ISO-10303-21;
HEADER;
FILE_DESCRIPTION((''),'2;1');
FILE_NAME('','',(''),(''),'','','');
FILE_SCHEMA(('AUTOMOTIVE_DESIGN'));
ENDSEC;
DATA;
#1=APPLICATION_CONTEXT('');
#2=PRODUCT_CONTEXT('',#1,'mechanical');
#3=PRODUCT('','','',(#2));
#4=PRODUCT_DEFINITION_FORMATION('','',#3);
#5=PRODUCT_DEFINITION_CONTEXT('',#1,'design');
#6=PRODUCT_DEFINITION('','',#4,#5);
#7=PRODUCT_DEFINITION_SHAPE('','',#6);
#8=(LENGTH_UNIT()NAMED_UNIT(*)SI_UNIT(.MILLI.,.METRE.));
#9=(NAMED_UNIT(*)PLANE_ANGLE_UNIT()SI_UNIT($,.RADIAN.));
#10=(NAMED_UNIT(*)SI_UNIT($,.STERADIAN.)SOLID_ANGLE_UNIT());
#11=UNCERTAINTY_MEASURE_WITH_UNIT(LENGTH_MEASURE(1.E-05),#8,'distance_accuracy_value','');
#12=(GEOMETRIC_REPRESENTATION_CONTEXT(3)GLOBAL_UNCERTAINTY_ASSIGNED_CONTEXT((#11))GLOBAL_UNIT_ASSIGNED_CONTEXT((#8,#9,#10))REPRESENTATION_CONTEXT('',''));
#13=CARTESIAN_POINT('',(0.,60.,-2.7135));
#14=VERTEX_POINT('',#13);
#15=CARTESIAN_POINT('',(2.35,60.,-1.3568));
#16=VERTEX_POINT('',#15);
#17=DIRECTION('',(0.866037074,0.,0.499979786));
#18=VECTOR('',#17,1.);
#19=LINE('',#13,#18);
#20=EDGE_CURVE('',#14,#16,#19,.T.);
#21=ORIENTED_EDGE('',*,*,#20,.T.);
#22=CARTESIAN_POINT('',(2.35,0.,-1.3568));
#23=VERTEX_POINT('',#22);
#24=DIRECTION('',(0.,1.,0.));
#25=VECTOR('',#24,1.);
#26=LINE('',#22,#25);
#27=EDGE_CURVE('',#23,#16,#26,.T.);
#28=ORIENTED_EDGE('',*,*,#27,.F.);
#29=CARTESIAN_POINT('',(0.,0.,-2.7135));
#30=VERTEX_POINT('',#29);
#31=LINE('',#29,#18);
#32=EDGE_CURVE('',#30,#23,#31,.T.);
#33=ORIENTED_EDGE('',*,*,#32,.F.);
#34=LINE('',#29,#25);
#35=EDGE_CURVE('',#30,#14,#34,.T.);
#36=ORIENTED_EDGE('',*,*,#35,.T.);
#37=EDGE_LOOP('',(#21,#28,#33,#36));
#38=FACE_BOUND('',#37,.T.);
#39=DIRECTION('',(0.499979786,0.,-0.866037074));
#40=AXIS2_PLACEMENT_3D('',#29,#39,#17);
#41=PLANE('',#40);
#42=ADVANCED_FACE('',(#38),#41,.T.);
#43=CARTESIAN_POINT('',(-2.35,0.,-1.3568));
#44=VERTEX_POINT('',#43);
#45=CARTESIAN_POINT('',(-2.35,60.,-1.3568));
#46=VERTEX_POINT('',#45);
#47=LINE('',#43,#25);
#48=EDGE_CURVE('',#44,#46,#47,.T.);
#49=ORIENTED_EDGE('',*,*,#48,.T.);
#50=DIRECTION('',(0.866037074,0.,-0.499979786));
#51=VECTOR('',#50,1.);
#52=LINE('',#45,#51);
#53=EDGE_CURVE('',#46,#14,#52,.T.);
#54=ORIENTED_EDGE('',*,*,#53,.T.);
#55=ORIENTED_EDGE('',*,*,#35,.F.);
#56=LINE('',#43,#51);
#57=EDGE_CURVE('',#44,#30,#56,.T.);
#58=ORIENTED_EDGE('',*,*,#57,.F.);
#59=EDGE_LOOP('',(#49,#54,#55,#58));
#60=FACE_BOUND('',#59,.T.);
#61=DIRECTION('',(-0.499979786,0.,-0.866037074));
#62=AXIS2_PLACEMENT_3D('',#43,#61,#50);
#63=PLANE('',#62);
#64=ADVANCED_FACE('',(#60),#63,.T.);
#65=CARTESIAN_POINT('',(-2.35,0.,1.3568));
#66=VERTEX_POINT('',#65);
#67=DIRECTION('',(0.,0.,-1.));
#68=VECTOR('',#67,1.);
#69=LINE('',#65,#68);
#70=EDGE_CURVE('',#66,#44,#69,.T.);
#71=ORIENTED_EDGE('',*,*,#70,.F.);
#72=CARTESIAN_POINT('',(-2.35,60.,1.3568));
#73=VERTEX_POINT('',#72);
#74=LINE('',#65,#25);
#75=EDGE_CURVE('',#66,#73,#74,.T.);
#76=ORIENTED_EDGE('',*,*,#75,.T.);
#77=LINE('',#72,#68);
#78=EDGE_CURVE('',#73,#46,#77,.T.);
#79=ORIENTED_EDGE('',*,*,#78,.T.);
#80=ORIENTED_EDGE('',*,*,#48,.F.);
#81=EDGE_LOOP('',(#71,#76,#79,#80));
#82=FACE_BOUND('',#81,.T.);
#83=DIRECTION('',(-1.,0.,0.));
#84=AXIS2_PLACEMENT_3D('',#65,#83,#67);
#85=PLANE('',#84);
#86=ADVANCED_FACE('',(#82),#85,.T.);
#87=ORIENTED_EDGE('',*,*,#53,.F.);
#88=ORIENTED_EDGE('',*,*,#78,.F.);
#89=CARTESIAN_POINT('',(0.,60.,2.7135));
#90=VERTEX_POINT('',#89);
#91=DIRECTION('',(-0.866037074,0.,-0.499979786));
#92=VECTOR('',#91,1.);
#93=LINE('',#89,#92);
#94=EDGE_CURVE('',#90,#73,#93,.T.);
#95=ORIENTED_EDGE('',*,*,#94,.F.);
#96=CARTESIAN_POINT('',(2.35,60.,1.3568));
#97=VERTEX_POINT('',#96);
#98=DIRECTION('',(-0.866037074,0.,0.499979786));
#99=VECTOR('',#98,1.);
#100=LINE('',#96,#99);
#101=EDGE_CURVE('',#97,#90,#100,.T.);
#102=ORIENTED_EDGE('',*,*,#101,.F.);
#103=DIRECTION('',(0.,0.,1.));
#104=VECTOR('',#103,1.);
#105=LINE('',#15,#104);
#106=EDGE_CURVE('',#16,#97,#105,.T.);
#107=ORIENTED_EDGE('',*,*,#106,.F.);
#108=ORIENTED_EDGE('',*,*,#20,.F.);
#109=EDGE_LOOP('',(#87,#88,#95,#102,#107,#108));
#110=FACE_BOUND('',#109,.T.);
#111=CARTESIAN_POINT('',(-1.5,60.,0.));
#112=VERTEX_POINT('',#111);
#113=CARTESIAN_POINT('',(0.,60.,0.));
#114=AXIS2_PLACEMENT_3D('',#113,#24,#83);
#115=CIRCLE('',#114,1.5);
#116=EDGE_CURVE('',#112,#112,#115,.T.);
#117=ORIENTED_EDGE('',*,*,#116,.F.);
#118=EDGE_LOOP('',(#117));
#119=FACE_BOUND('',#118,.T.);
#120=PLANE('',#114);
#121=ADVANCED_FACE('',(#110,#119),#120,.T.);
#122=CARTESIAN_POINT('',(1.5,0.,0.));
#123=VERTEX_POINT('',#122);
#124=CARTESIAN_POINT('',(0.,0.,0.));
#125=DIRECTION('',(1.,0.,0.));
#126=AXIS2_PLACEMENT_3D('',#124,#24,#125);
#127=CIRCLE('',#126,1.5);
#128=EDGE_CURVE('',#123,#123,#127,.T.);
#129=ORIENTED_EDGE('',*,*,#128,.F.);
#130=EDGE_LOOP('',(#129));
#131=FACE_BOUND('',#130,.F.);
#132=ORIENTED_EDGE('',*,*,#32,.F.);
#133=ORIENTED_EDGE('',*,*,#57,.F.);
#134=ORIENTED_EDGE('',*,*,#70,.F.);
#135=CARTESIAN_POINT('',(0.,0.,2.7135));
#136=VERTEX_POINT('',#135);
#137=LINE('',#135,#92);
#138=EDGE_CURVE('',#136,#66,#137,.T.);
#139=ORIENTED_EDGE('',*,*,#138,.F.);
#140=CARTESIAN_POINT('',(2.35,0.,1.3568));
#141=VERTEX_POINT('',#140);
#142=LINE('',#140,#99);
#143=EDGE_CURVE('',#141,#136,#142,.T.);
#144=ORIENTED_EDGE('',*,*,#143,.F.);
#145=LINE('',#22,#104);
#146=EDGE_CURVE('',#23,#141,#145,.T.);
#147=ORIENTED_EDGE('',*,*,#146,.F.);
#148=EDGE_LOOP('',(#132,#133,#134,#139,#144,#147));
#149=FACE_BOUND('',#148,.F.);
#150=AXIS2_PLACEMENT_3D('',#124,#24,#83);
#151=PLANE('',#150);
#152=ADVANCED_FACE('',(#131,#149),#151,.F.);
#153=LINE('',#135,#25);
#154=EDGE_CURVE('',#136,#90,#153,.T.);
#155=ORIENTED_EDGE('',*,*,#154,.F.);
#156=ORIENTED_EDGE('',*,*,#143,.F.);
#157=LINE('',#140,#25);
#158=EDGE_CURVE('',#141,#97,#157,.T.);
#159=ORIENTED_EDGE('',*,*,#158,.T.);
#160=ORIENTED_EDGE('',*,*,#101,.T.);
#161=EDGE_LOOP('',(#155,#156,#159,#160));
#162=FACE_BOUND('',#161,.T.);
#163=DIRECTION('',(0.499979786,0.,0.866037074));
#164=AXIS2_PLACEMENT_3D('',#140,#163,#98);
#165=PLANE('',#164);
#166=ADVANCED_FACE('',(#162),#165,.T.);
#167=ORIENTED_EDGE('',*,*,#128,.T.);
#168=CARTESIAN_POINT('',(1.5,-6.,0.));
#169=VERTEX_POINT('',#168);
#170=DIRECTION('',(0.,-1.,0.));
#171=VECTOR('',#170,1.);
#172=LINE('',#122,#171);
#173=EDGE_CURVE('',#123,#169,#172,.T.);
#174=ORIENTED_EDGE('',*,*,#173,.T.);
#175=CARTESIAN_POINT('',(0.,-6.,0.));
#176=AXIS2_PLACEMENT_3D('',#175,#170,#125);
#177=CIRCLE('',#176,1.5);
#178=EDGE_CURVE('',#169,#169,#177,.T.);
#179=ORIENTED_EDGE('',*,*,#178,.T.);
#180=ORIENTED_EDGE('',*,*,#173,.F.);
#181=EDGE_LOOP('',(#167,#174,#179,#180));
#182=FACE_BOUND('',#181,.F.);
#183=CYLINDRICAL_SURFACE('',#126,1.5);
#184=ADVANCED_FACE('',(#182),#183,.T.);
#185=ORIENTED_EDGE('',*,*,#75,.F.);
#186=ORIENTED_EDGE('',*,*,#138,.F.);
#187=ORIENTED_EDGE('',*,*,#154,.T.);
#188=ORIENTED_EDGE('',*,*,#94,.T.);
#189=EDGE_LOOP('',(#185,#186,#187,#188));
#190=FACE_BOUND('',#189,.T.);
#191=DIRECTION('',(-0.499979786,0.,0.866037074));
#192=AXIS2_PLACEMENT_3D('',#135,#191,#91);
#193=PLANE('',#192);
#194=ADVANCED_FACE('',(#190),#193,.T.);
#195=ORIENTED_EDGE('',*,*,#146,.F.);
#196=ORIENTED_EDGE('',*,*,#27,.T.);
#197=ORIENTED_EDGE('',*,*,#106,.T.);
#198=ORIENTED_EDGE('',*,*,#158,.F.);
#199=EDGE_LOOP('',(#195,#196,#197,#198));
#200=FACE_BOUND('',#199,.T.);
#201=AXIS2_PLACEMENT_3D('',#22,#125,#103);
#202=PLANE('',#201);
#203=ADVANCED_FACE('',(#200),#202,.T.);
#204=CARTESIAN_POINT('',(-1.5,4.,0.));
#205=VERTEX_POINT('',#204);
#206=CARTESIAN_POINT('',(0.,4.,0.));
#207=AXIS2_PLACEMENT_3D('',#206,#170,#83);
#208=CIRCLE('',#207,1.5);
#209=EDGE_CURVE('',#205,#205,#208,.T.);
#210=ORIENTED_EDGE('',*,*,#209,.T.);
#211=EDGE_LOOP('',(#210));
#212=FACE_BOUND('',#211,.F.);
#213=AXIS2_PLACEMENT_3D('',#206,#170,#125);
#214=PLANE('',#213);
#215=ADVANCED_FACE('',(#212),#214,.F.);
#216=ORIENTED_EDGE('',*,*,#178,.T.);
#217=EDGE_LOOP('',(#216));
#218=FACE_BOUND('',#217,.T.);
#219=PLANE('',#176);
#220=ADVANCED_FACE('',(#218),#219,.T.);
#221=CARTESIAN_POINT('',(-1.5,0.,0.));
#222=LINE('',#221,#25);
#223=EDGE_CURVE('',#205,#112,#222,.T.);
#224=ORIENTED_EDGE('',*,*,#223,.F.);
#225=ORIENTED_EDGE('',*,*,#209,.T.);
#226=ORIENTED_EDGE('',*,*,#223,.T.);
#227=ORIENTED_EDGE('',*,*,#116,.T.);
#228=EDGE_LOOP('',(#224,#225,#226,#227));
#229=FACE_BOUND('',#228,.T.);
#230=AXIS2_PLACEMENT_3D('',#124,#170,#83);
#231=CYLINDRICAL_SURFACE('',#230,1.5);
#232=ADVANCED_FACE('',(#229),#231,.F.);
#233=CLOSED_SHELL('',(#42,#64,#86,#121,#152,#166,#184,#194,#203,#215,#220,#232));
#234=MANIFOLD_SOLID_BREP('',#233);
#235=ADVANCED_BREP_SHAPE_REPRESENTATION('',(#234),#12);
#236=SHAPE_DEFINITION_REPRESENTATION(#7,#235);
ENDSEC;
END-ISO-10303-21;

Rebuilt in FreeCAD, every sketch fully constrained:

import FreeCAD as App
import Part
import Sketcher
from FreeCAD import Vector

doc = App.newDocument("Part")
params = doc.addObject("Spreadsheet::Sheet", "Params")
for row, (alias, value) in enumerate([
    ("sketch1_diameter", "3 mm"),
    ("pad1_length", "60 mm"),
    ("sketch2_diameter", "3 mm"),
    ("pad2_length", "6 mm"),
    ("pad2_length2", "4 mm"),
], start=1):
    params.set(f"A{row}", alias)
    params.set(f"B{row}", "=" + value)
    params.setAlias(f"B{row}", alias)

body = doc.addObject("PartDesign::Body", "Body")

sketch1 = body.newObject("Sketcher::SketchObject", "Sketch")
sketch1.AttachmentSupport = (doc.getObject("XZ_Plane"), [""])
sketch1.MapMode = "FlatFace"
sketch1.addGeometry(Part.LineSegment(Vector(2.4, -1.4, 0), Vector(0, -2.7, 0)), False)
sketch1.addGeometry(Part.LineSegment(Vector(0, -2.7, 0), Vector(-2.4, -1.4, 0)), False)
sketch1.addGeometry(Part.LineSegment(Vector(-2.4, -1.4, 0), Vector(-2.4, 1.4, 0)), False)
sketch1.addGeometry(Part.LineSegment(Vector(-2.4, 1.4, 0), Vector(0, 2.7, 0)), False)
sketch1.addGeometry(Part.LineSegment(Vector(0, 2.7, 0), Vector(2.4, 1.4, 0)), False)
sketch1.addGeometry(Part.LineSegment(Vector(2.4, 1.4, 0), Vector(2.4, -1.4, 0)), False)
sketch1.addGeometry(Part.Circle(Vector(0, 0, 0), Vector(0, 0, 1), 1.5), False)
sketch1.addConstraint(Sketcher.Constraint("Coincident", 0, 2, 1, 1))
sketch1.addConstraint(Sketcher.Constraint("Coincident", 1, 2, 2, 1))
sketch1.addConstraint(Sketcher.Constraint("Coincident", 2, 2, 3, 1))
sketch1.addConstraint(Sketcher.Constraint("Coincident", 3, 2, 4, 1))
sketch1.addConstraint(Sketcher.Constraint("Coincident", 4, 2, 5, 1))
sketch1.addConstraint(Sketcher.Constraint("Coincident", 5, 2, 0, 1))
sketch1.addConstraint(Sketcher.Constraint("Vertical", 2))
sketch1.addConstraint(Sketcher.Constraint("Vertical", 5))
sketch1.addConstraint(Sketcher.Constraint("Coincident", 6, 3, -1, 1))
sketch1.addConstraint(Sketcher.Constraint("Symmetric", 0, 2, 3, 2, -1, 1))
sketch1.addConstraint(Sketcher.Constraint("Symmetric", 1, 2, 4, 2, -1, 1))
sketch1.addConstraint(Sketcher.Constraint("PointOnObject", 0, 2, -2))
sketch1.addConstraint(Sketcher.Constraint("Parallel", 0, 3))
sketch1.addConstraint(Sketcher.Constraint("Horizontal", 2, 2, 4, 2))
sketch1.addConstraint(Sketcher.Constraint("Diameter", 6, 3.0))
sketch1.addConstraint(Sketcher.Constraint("DistanceX", 2, 2, 4, 2, 4.7))
sketch1.addConstraint(Sketcher.Constraint("DistanceY", 2, 1, 2, 2, 2.7136))
sketch1.addConstraint(Sketcher.Constraint("DistanceY", 0, 2, 3, 2, 5.427))
sketch1.setExpression("Constraints[14]", "Params.sketch1_diameter")
pad1 = body.newObject("PartDesign::Pad", "Pad")
pad1.Profile = sketch1
pad1.setExpression("Length", "Params.pad1_length")
pad1.Reversed = True

sketch2 = body.newObject("Sketcher::SketchObject", "Sketch001")
sketch2.AttachmentSupport = (doc.getObject("XZ_Plane"), [""])
sketch2.MapMode = "FlatFace"
sketch2.addGeometry(Part.Circle(Vector(0, 0, 0), Vector(0, 0, 1), 1.5), False)
sketch2.addConstraint(Sketcher.Constraint("Coincident", 0, 3, -1, 1))
sketch2.addConstraint(Sketcher.Constraint("Diameter", 0, 3.0))
sketch2.setExpression("Constraints[1]", "Params.sketch2_diameter")
pad2 = body.newObject("PartDesign::Pad", "Pad001")
pad2.Profile = sketch2
pad2.Type = "TwoLengths"
pad2.setExpression("Length", "Params.pad2_length")
pad2.setExpression("Length2", "Params.pad2_length2")

doc.recompute()
